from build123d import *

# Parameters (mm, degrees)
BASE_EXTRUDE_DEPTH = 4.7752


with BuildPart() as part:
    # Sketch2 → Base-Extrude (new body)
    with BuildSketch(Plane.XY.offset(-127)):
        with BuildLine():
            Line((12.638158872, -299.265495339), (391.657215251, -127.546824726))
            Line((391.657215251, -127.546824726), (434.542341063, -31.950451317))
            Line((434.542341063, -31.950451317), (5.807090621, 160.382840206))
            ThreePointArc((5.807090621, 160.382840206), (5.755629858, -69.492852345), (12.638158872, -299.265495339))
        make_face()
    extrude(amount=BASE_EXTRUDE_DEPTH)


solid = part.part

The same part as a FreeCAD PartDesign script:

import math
import FreeCAD as App
import Part
import Sketcher

V = App.Vector
Q = App.Units.Quantity

doc = App.newDocument("Part")
body = doc.addObject("PartDesign::Body", "Body")

sketch1 = body.newObject("Sketcher::SketchObject", "Sketch")
sketch1.AttachmentSupport = (doc.getObject("XY_Plane"), [""])
sketch1.MapMode = "FlatFace"
sketch1.AttachmentOffset = App.Placement(V(0, 0, -5 * 25.4), App.Rotation())
sketch1.addGeometry(Part.LineSegment(V(12.638159, -299.265495, 0), V(391.657215, -127.546825, 0)), False)
sketch1.addGeometry(Part.LineSegment(V(391.657215, -127.546825, 0), V(434.542341, -31.950451, 0)), False)
sketch1.addGeometry(Part.LineSegment(V(434.542341, -31.950451, 0), V(5.807091, 160.38284, 0)), False)
sketch1.addGeometry(Part.ArcOfCircle(Part.Circle(V(7624.914274, 43.739349, 0), V(0, 0, 1), 7619.999998), math.radians(179.122908), math.radians(182.57997)), False)
sketch1.addConstraint(Sketcher.Constraint("Coincident", 0, 2, 1, 1))
sketch1.addConstraint(Sketcher.Constraint("Coincident", 1, 2, 2, 1))
sketch1.addConstraint(Sketcher.Constraint("Coincident", 2, 2, 3, 1))
sketch1.addConstraint(Sketcher.Constraint("Coincident", 3, 2, 0, 1))
sketch1.addConstraint(Sketcher.Constraint("Perpendicular", 1, 2))
sketch1.addConstraint(Sketcher.Constraint("Radius", 3, Q("299.9999999 in")))
sketch1.addConstraint(Sketcher.Constraint("Distance", 2, Q("18.5 in")))
sketch1.addConstraint(Sketcher.Constraint("Distance", 1, Q("4.125 in")))
sketch1.addConstraint(Sketcher.Constraint("DistanceX", 0, 2, 3, 3, Q("284.7738999 in")))
sketch1.addConstraint(Sketcher.Constraint("DistanceY", 1, 2, 3, 3, Q("75.6898 mm")))
sketch1.addConstraint(Sketcher.Constraint("Distance", 0, Q("416.10425 mm")))
sketch1.addConstraint(Sketcher.Constraint("DistanceY", -1, 1, 3, 3, Q("43.739349 mm")))
sketch1.addConstraint(Sketcher.Constraint("DistanceX", -1, 1, 1, 2, Q("434.542341 mm")))
pad1 = body.newObject("PartDesign::Pad", "Pad")
pad1.Profile = sketch1
pad1.Length = Q("0.188 in")

doc.recompute()
